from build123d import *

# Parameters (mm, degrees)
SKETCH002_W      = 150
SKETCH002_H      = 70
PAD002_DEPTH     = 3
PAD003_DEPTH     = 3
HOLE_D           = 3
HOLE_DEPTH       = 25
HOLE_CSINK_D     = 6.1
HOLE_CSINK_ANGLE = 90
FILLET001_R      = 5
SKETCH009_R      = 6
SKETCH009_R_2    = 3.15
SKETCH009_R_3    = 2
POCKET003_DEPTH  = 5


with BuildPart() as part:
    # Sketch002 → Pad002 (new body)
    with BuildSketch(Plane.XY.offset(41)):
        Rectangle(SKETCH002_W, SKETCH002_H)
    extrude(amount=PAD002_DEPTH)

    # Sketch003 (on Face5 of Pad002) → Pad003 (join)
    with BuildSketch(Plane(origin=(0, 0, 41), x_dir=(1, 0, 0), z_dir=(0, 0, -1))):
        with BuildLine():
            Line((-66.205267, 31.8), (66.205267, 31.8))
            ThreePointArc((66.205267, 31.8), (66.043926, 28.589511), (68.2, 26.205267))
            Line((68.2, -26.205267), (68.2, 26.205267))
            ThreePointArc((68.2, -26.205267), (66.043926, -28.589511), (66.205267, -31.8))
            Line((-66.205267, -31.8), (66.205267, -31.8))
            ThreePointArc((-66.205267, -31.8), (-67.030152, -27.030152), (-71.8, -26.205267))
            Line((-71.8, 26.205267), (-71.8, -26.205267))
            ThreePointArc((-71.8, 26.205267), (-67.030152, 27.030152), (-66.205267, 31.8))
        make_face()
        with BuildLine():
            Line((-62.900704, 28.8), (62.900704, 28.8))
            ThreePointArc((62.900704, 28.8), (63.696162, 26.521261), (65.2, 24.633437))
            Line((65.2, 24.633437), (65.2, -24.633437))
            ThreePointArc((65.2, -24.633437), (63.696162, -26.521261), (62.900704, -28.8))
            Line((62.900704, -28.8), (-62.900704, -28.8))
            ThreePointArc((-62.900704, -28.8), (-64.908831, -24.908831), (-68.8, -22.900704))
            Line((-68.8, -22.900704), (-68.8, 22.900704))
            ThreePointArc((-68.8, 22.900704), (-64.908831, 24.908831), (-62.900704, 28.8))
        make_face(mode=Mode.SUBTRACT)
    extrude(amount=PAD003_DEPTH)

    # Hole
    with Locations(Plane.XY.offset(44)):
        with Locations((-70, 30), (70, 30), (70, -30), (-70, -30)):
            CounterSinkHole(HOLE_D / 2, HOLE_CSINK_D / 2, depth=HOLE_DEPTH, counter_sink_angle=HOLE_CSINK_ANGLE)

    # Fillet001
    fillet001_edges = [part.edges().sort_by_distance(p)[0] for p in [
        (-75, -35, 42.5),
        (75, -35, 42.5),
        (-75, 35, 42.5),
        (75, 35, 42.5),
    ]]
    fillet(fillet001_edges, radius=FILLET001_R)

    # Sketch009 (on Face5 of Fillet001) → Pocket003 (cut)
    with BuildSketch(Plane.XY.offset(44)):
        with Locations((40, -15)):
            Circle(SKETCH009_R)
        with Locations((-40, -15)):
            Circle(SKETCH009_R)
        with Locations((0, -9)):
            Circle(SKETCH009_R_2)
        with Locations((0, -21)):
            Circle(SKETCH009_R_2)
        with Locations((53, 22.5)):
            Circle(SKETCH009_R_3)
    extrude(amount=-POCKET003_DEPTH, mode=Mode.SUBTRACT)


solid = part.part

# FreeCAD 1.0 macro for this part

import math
import FreeCAD as App
import Part
import Sketcher
Q = App.Units.Quantity


def edges_at(feature, points):
    """Names of the edges that pass closest to the given points."""
    edges = feature.Shape.Edges
    near = lambda p: min(range(len(edges)), key=lambda i: edges[i].distToShape(Part.Vertex(*p))[0])
    return sorted({f"Edge{near(p) + 1}" for p in points})

doc = App.newDocument("Part")
body = doc.addObject("PartDesign::Body", "Body")

# Sketch on XY plane
sketch1 = doc.addObject("Sketcher::SketchObject", "Sketch")
body.addObject(sketch1)
sketch1.AttachmentSupport = (doc.XY_Plane, [""])
sketch1.MapMode = "FlatFace"
sketch1.AttachmentOffset = App.Placement(App.Vector(0, 0, 41), App.Rotation())
sketch1.addGeometry([
    Part.LineSegment(App.Vector(-75, 35, 0), App.Vector(-75, -35, 0)),
    Part.LineSegment(App.Vector(-75, -35, 0), App.Vector(75, -35, 0)),
    Part.LineSegment(App.Vector(75, -35, 0), App.Vector(75, 35, 0)),
    Part.LineSegment(App.Vector(75, 35, 0), App.Vector(-75, 35, 0)),
], False)
sketch1.addConstraint([
    Sketcher.Constraint("Coincident", 0, 2, 1, 1),
    Sketcher.Constraint("Coincident", 1, 2, 2, 1),
    Sketcher.Constraint("Coincident", 2, 2, 3, 1),
    Sketcher.Constraint("Coincident", 3, 2, 0, 1),
    Sketcher.Constraint("Vertical", 0),
    Sketcher.Constraint("Horizontal", 1),
    Sketcher.Constraint("Vertical", 2),
    Sketcher.Constraint("Horizontal", 3),
    Sketcher.Constraint("Symmetric", 0, 2, 2, 2, -1, 1),
    Sketcher.Constraint("DistanceX", 1, 1, 1, 2, Q("150 mm")),
    Sketcher.Constraint("DistanceY", 0, 2, 0, 1, Q("70 mm")),
])
pad1 = doc.addObject("PartDesign::Pad", "Pad")
body.addObject(pad1)
pad1.Profile = sketch1
pad1.Length = 3

# Sketch on XY plane
sketch2 = doc.addObject("Sketcher::SketchObject", "Sketch001")
body.addObject(sketch2)
sketch2.AttachmentSupport = (doc.XY_Plane, [""])
sketch2.MapMode = "FlatFace"
sketch2.AttachmentOffset = App.Placement(App.Vector(0, 0, 41), App.Rotation())
sketch2.addGeometry([
    Part.LineSegment(App.Vector(66.2, -31.8, 0), App.Vector(-66.2, -31.8, 0)),  # 0
    Part.ArcOfCircle(Part.Circle(App.Vector(-70, -30, 0), App.Vector(0, 0, 1), 4.2), math.radians(-25), math.radians(115)),  # 1
    Part.LineSegment(App.Vector(-71.8, -26.2, 0), App.Vector(-71.8, 26.2, 0)),  # 2
    Part.ArcOfCircle(Part.Circle(App.Vector(-70, 30, 0), App.Vector(0, 0, 1), 4.2), math.radians(-115), math.radians(25)),  # 3
    Part.LineSegment(App.Vector(-66.2, 31.8, 0), App.Vector(66.2, 31.8, 0)),  # 4
    Part.ArcOfCircle(Part.Circle(App.Vector(70, 30, 0), App.Vector(0, 0, 1), 4.2), math.radians(155), math.radians(245)),  # 5
    Part.LineSegment(App.Vector(68.2, 26.2, 0), App.Vector(68.2, -26.2, 0)),  # 6
    Part.ArcOfCircle(Part.Circle(App.Vector(70, -30, 0), App.Vector(0, 0, 1), 4.2), math.radians(115), math.radians(205)),  # 7
    Part.LineSegment(App.Vector(-62.9, -28.8, 0), App.Vector(62.9, -28.8, 0)),  # 8
    Part.ArcOfCircle(Part.Circle(App.Vector(70, -30, 0), App.Vector(0, 0, 1), 7.2), math.radians(132), math.radians(170)),  # 9
    Part.LineSegment(App.Vector(65.2, -24.6, 0), App.Vector(65.2, 24.6, 0)),  # 10
    Part.ArcOfCircle(Part.Circle(App.Vector(70, 30, 0), App.Vector(0, 0, 1), 7.2), math.radians(-170), math.radians(-132)),  # 11
    Part.LineSegment(App.Vector(62.9, 28.8, 0), App.Vector(-62.9, 28.8, 0)),  # 12
    Part.ArcOfCircle(Part.Circle(App.Vector(-70, 30, 0), App.Vector(0, 0, 1), 7.2), math.radians(-80), math.radians(-10)),  # 13
    Part.LineSegment(App.Vector(-68.8, 22.9, 0), App.Vector(-68.8, -22.9, 0)),  # 14
    Part.ArcOfCircle(Part.Circle(App.Vector(-70, -30, 0), App.Vector(0, 0, 1), 7.2), math.radians(10), math.radians(80)),  # 15
], False)
sketch2.addConstraint([
    Sketcher.Constraint("Coincident", 0, 2, 1, 1),
    Sketcher.Constraint("Coincident", 1, 2, 2, 1),
    Sketcher.Constraint("Coincident", 2, 2, 3, 1),
    Sketcher.Constraint("Coincident", 3, 2, 4, 1),
    Sketcher.Constraint("Coincident", 4, 2, 5, 1),
    Sketcher.Constraint("Coincident", 5, 2, 6, 1),
    Sketcher.Constraint("Coincident", 6, 2, 7, 1),
    Sketcher.Constraint("Coincident", 7, 2, 0, 1),
    Sketcher.Constraint("Coincident", 8, 2, 9, 2),
    Sketcher.Constraint("Coincident", 9, 1, 10, 1),
    Sketcher.Constraint("Coincident", 10, 2, 11, 2),
    Sketcher.Constraint("Coincident", 11, 1, 12, 1),
    Sketcher.Constraint("Coincident", 12, 2, 13, 2),
    Sketcher.Constraint("Coincident", 13, 1, 14, 1),
    Sketcher.Constraint("Coincident", 14, 2, 15, 2),
    Sketcher.Constraint("Coincident", 15, 1, 8, 1),
    Sketcher.Constraint("Horizontal", 0),
    Sketcher.Constraint("Vertical", 2),
    Sketcher.Constraint("Horizontal", 4),
    Sketcher.Constraint("Vertical", 6),
    Sketcher.Constraint("Horizontal", 8),
    Sketcher.Constraint("Vertical", 10),
    Sketcher.Constraint("Horizontal", 12),
    Sketcher.Constraint("Vertical", 14),
    Sketcher.Constraint("Coincident", 9, 3, 7, 3),
    Sketcher.Constraint("Coincident", 11, 3, 5, 3),
    Sketcher.Constraint("Coincident", 13, 3, 3, 3),
    Sketcher.Constraint("Coincident", 15, 3, 1, 3),
    Sketcher.Constraint("Equal", 1, 3),
    Sketcher.Constraint("Equal", 3, 5),
    Sketcher.Constraint("Equal", 5, 7),
    Sketcher.Constraint("Equal", 9, 11),
    Sketcher.Constraint("Equal", 13, 15),
    Sketcher.Constraint("Symmetric", 1, 3, 5, 3, -1, 1),
    Sketcher.Constraint("Symmetric", 3, 3, 7, 3, -1, 1),
    Sketcher.Constraint("Symmetric", 8, 2, 12, 2, -1, 1),
    Sketcher.Constraint("Symmetric", 3, 3, 5, 3, -2),
    Sketcher.Constraint("Horizontal", 2, 2, 5, 2),
    Sketcher.Constraint("Vertical", 0, 2, 3, 2),
    Sketcher.Constraint("Radius", 1, Q("4.2 mm")),
    Sketcher.Constraint("Radius", 13, Q("7.2 mm")),
    Sketcher.Constraint("DistanceX", 1, 3, -1, 1, Q("70.000001 mm")),
    Sketcher.Constraint("DistanceY", 1, 3, -1, 1, Q("30.000001 mm")),
    Sketcher.Constraint("DistanceY", 7, 2, 8, 2, Q("3 mm")),
    Sketcher.Constraint("DistanceX", 9, 1, 6, 2, Q("3 mm")),
    Sketcher.Constraint("DistanceX", 2, 2, 13, 1, Q("3 mm")),
    Sketcher.Constraint("DistanceY", 0, 2, -1, 1, Q("31.8 mm")),
    Sketcher.Constraint("DistanceX", 1, 2, -1, 1, Q("71.8 mm")),
])
pad2 = doc.addObject("PartDesign::Pad", "Pad001")
body.addObject(pad2)
pad2.Profile = sketch2
pad2.Length = 3
pad2.Reversed = True

# Sketch on XY plane
sketch3 = doc.addObject("Sketcher::SketchObject", "Sketch002")
body.addObject(sketch3)
sketch3.AttachmentSupport = (doc.XY_Plane, [""])
sketch3.MapMode = "FlatFace"
sketch3.AttachmentOffset = App.Placement(App.Vector(0, 0, 44), App.Rotation())
sketch3.addGeometry([
    Part.Circle(App.Vector(-70, 30, 0), App.Vector(0, 0, 1), 1.5),
    Part.Circle(App.Vector(70, 30, 0), App.Vector(0, 0, 1), 1.5),
    Part.Circle(App.Vector(70, -30, 0), App.Vector(0, 0, 1), 1.5),
    Part.Circle(App.Vector(-70, -30, 0), App.Vector(0, 0, 1), 1.5),
], False)
sketch3.addConstraint([
    Sketcher.Constraint("Equal", 0, 1),
    Sketcher.Constraint("Equal", 1, 2),
    Sketcher.Constraint("Equal", 2, 3),
    Sketcher.Constraint("Symmetric", 0, 3, 2, 3, -1, 1),
    Sketcher.Constraint("Symmetric", 1, 3, 3, 3, -1, 1),
    Sketcher.Constraint("Symmetric", 0, 3, 1, 3, -2),
    Sketcher.Constraint("Diameter", 0, Q("3 mm")),
    Sketcher.Constraint("DistanceX", 0, 3, -1, 1, Q("70 mm")),
    Sketcher.Constraint("DistanceY", -1, 1, 0, 3, Q("30 mm")),
])
doc.recompute()
hole = doc.addObject("PartDesign::Hole", "Hole")
body.addObject(hole)
hole.Profile = sketch3
hole.ThreadType = "None"
hole.Diameter = 3
hole.DepthType = "Dimension"
hole.Depth = 25
hole.DrillPoint = "Flat"
hole.HoleCutType = "Countersink"
hole.HoleCutDiameter = 6.1
hole.HoleCutCountersinkAngle = 90
doc.recompute()

fillet = doc.addObject("PartDesign::Fillet", "Fillet")
body.addObject(fillet)
fillet.Base = (hole, edges_at(hole, [
    (-75, -35, 42.5),
    (75, -35, 42.5),
    (-75, 35, 42.5),
    (75, 35, 42.5),
]))
fillet.Radius = 5

# Sketch on XY plane
sketch4 = doc.addObject("Sketcher::SketchObject", "Sketch003")
body.addObject(sketch4)
sketch4.AttachmentSupport = (doc.XY_Plane, [""])
sketch4.MapMode = "FlatFace"
sketch4.AttachmentOffset = App.Placement(App.Vector(0, 0, 44), App.Rotation())
sketch4.addGeometry([
    Part.Circle(App.Vector(40, -15, 0), App.Vector(0, 0, 1), 6),  # 0
    Part.Circle(App.Vector(-40, -15, 0), App.Vector(0, 0, 1), 6),  # 1
    Part.Circle(App.Vector(0, -9, 0), App.Vector(0, 0, 1), 3.1),  # 2
    Part.Circle(App.Vector(0, -21, 0), App.Vector(0, 0, 1), 3.1),  # 3
    Part.Circle(App.Vector(53, 22.5, 0), App.Vector(0, 0, 1), 2),  # 4
], False)
sketch4.addConstraint([
    Sketcher.Constraint("Equal", 0, 1),
    Sketcher.Constraint("Equal", 2, 3),
    Sketcher.Constraint("Symmetric", 0, 3, 1, 3, -2),
    Sketcher.Constraint("PointOnObject", 2, 3, -2),
    Sketcher.Constraint("PointOnObject", 3, 3, -2),
    Sketcher.Constraint("Diameter", 0, Q("12 mm")),
    Sketcher.Constraint("Diameter", 4, Q("4 mm")),
    Sketcher.Constraint("Diameter", 2, Q("6.3 mm")),
    Sketcher.Constraint("DistanceX", -1, 1, 0, 3, Q("40 mm")),
    Sketcher.Constraint("DistanceY", 0, 3, -1, 1, Q("15 mm")),
    Sketcher.Constraint("DistanceY", 2, 3, -1, 1, Q("9 mm")),
    Sketcher.Constraint("DistanceY", 3, 3, -1, 1, Q("21 mm")),
    Sketcher.Constraint("DistanceX", -1, 1, 4, 3, Q("53 mm")),
    Sketcher.Constraint("DistanceY", -1, 1, 4, 3, Q("22.5 mm")),
])
pocket1 = doc.addObject("PartDesign::Pocket", "Pocket")
body.addObject(pocket1)
pocket1.Profile = sketch4
pocket1.Length = 5

doc.recompute()
